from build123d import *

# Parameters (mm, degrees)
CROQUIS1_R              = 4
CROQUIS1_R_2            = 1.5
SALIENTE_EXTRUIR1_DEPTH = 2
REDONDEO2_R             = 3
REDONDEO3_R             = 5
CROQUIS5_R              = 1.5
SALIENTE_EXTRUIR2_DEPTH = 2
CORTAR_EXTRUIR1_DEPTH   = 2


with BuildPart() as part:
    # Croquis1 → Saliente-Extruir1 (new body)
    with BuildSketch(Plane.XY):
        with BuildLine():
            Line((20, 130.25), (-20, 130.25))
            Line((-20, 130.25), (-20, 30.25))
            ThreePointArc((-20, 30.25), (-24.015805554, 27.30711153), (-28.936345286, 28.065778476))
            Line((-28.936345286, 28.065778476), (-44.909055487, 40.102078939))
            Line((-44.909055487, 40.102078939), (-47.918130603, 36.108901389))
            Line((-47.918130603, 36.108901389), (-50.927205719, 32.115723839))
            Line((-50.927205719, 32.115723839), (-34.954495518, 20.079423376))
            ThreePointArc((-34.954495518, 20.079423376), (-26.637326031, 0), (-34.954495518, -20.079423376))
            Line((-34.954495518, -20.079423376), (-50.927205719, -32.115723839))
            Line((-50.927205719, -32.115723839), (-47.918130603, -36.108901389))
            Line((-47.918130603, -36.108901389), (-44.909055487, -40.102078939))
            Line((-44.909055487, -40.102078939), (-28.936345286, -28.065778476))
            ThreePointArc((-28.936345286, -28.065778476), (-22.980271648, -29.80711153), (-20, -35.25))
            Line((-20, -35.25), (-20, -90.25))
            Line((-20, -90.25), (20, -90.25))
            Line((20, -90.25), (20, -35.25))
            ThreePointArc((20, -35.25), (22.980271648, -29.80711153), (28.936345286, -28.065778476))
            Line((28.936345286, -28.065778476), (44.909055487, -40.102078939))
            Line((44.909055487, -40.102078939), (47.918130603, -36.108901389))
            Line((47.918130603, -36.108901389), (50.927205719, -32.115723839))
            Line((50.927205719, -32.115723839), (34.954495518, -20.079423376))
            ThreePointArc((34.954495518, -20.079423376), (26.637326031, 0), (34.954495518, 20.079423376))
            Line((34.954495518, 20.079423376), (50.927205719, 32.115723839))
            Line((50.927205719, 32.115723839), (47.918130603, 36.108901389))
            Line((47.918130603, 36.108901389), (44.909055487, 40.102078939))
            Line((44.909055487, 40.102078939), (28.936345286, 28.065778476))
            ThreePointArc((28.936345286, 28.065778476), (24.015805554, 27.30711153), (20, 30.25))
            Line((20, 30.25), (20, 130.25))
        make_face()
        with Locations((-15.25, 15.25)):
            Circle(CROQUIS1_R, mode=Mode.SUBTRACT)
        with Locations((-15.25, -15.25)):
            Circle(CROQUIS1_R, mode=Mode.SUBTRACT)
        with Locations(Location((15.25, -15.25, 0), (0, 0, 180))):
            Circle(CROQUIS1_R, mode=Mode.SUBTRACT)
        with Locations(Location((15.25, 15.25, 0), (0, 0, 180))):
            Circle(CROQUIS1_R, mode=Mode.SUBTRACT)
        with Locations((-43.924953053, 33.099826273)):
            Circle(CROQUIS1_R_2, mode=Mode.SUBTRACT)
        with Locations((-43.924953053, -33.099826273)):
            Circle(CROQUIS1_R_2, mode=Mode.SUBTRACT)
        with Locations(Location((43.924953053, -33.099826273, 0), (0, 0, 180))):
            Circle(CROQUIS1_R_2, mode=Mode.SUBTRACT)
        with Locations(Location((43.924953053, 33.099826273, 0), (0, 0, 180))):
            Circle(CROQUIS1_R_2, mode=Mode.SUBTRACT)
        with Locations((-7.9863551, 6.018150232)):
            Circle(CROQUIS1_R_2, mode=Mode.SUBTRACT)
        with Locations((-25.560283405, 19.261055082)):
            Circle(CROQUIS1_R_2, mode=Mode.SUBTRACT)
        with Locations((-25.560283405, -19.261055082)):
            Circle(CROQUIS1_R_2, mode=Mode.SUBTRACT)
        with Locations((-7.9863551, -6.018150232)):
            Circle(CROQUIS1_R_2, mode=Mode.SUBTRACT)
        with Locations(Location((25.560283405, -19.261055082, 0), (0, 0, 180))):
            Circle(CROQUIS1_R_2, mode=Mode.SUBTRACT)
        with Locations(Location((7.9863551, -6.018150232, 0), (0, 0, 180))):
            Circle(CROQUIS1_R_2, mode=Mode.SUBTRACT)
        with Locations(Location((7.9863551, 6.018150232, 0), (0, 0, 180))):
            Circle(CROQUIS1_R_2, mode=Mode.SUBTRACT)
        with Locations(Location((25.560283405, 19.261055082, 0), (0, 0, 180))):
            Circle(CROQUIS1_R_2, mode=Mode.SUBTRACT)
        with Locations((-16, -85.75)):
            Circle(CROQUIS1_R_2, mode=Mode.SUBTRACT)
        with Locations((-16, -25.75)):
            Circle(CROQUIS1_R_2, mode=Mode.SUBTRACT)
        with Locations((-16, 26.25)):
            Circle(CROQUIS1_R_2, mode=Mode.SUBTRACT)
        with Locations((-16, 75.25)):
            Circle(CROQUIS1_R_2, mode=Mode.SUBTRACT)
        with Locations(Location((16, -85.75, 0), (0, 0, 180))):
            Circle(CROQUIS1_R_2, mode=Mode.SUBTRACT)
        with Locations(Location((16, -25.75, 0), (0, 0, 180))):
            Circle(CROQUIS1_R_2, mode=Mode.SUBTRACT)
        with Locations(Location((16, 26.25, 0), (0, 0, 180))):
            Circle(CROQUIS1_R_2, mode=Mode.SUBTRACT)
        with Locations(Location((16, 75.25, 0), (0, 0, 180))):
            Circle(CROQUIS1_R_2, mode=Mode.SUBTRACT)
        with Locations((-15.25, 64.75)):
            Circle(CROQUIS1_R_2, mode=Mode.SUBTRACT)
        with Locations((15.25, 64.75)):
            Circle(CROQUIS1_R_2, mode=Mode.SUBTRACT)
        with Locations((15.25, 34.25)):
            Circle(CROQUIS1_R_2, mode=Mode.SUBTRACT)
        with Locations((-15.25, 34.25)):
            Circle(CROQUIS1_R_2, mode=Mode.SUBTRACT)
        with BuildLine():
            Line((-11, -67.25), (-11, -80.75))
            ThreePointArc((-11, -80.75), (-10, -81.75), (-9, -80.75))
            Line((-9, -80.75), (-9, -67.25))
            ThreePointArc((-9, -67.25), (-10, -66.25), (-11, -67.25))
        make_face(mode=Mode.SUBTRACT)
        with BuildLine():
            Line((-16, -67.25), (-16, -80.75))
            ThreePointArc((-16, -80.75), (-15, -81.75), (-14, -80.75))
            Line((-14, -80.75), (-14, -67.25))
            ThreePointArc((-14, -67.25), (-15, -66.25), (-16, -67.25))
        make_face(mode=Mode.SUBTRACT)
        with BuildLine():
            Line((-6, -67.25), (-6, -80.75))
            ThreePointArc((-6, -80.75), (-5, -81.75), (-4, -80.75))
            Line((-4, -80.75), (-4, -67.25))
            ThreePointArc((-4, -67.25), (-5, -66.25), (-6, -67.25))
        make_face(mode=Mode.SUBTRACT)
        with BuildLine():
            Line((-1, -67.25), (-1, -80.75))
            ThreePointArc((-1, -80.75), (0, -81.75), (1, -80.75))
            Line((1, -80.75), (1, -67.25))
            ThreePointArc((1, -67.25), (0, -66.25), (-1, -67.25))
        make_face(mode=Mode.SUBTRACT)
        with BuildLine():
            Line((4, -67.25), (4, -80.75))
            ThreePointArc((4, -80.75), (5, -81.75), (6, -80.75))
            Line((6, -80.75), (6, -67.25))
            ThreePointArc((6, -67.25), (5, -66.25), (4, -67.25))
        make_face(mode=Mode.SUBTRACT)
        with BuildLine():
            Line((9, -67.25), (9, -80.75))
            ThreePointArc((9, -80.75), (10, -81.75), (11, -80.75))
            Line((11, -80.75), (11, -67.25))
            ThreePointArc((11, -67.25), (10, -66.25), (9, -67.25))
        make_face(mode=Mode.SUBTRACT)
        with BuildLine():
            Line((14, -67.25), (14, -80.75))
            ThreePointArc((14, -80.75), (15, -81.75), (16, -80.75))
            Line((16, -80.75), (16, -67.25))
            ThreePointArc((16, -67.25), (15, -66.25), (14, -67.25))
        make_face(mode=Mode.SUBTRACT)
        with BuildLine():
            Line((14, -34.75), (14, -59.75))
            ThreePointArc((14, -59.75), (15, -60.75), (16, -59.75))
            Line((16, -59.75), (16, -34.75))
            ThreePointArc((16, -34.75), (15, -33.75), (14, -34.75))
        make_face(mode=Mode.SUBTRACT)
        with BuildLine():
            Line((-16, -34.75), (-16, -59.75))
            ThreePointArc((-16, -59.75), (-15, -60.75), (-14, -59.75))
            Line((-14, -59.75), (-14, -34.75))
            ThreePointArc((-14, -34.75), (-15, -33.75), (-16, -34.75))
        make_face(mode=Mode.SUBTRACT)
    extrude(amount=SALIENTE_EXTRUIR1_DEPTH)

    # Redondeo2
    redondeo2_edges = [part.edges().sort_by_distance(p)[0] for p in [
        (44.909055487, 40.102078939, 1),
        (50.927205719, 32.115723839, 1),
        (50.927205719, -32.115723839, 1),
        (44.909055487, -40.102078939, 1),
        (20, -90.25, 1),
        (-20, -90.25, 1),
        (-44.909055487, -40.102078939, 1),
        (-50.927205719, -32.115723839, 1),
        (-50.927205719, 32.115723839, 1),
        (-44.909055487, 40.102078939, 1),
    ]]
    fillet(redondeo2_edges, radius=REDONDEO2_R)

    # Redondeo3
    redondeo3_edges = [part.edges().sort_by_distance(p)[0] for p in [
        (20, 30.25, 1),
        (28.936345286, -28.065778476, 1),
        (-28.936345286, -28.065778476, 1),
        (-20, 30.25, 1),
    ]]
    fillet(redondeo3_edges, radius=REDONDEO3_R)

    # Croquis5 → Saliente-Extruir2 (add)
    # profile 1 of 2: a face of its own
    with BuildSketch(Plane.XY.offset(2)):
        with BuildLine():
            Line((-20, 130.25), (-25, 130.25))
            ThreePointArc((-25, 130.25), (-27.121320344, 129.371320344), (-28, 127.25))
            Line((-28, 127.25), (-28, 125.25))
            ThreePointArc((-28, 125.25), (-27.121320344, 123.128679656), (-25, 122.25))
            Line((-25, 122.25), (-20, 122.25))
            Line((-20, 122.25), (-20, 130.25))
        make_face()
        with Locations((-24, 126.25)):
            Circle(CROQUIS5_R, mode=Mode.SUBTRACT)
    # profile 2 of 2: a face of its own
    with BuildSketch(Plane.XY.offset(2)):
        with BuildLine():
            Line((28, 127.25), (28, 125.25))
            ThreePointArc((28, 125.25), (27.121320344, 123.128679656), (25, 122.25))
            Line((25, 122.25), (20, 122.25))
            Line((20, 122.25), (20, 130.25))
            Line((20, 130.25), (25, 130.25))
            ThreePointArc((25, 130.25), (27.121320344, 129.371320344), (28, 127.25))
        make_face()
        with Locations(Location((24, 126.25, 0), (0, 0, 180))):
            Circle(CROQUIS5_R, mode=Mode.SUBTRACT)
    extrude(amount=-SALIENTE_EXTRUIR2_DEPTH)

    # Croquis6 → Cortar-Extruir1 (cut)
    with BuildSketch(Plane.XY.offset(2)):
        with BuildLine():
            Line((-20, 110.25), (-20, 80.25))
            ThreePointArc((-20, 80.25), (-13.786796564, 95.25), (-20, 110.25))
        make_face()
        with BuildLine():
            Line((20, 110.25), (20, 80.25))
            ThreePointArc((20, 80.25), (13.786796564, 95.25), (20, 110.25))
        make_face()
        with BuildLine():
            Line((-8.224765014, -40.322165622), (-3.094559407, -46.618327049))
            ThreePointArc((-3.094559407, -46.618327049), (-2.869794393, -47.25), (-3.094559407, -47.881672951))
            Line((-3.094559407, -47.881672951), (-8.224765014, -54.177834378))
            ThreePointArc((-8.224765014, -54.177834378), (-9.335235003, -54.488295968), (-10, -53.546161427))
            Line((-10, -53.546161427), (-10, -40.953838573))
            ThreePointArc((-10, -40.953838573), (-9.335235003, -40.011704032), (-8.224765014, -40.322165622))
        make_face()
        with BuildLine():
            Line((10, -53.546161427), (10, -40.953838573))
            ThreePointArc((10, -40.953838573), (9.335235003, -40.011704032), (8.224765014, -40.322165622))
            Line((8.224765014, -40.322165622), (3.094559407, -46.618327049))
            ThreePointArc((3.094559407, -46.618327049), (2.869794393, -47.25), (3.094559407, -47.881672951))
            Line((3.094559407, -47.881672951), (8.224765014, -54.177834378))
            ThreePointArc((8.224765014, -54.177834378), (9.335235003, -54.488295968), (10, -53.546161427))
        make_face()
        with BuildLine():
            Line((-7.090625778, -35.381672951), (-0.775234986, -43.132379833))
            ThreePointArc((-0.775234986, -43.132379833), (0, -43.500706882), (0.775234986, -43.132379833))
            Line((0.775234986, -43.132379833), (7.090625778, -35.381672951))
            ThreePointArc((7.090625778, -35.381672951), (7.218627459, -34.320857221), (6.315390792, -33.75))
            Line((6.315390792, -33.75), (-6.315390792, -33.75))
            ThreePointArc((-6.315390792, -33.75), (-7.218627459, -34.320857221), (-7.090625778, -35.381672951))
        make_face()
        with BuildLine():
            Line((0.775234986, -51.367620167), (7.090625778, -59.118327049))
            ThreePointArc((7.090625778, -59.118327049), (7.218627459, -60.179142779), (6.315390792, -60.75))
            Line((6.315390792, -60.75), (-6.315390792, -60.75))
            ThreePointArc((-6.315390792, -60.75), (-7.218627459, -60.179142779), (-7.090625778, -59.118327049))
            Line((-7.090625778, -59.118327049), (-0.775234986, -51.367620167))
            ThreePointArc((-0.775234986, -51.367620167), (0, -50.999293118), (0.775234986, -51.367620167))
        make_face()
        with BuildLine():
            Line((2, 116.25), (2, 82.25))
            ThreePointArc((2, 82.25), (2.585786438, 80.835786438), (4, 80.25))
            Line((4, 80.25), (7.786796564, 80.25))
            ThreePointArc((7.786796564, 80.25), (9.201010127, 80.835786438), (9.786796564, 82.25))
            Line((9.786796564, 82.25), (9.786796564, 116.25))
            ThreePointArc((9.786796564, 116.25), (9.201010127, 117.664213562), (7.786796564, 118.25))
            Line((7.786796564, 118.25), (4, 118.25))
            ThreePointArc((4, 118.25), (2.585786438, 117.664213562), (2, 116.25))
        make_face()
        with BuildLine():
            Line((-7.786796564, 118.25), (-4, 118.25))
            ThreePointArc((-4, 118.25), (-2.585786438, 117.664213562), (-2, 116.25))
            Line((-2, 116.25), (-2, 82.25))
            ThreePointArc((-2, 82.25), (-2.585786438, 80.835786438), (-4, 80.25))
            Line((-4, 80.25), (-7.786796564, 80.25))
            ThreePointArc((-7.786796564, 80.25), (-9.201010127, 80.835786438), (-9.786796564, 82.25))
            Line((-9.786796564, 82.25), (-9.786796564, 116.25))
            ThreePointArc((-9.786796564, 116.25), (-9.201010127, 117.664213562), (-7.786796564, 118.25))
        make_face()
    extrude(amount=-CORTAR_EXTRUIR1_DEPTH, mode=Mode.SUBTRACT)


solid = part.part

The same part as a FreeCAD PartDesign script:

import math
import FreeCAD as App
import Part
import Sketcher
from FreeCAD import Vector
Q = App.Units.Quantity


def edges_at(feature, points):
    """Names of the edges that pass closest to the given points."""
    edges = feature.Shape.Edges
    near = lambda p: min(range(len(edges)), key=lambda i: edges[i].distToShape(Part.Vertex(*p))[0])
    return sorted({f"Edge{near(p) + 1}" for p in points})

doc = App.newDocument("Part")
body = doc.addObject("PartDesign::Body", "Body")

sketch1 = body.newObject("Sketcher::SketchObject", "Sketch")
sketch1.AttachmentSupport = (doc.getObject("XY_Plane"), [""])
sketch1.MapMode = "FlatFace"
sketch1.addGeometry([
    Part.LineSegment(Vector(20, 130.2, 0), Vector(-20, 130.2, 0)),
    Part.LineSegment(Vector(-20, 130.2, 0), Vector(-20, 30.2, 0)),
    Part.ArcOfCircle(Part.Circle(Vector(-25.6, 33.6, 0), Vector(0, 0, 1), 6.5), math.radians(-121), math.radians(-31)),
    Part.LineSegment(Vector(-28.9, 28.1, 0), Vector(-44.9, 40.1, 0)),
    Part.LineSegment(Vector(-44.9, 40.1, 0), Vector(-50.9, 32.1, 0)),
    Part.LineSegment(Vector(-50.9, 32.1, 0), Vector(-35, 20.1, 0)),
    Part.ArcOfCircle(Part.Circle(Vector(-55, 0, 0), Vector(0, 0, 1), 28.4), math.radians(-45), math.radians(45)),
    Part.LineSegment(Vector(-35, -20.1, 0), Vector(-50.9, -32.1, 0)),
    Part.LineSegment(Vector(-50.9, -32.1, 0), Vector(-44.9, -40.1, 0)),
    Part.LineSegment(Vector(-44.9, -40.1, 0), Vector(-28.9, -28.1, 0)),
    Part.ArcOfCircle(Part.Circle(Vector(-28.1, -36.1, 0), Vector(0, 0, 1), 8.1), math.radians(6), math.radians(96)),
    Part.LineSegment(Vector(-20, -35.2, 0), Vector(-20, -90.2, 0)),
    Part.LineSegment(Vector(-20, -90.2, 0), Vector(20, -90.2, 0)),
    Part.LineSegment(Vector(20, -90.2, 0), Vector(20, -35.2, 0)),
    Part.ArcOfCircle(Part.Circle(Vector(28.1, -36.1, 0), Vector(0, 0, 1), 8.1), math.radians(84), math.radians(174)),
    Part.LineSegment(Vector(28.9, -28.1, 0), Vector(44.9, -40.1, 0)),
    Part.LineSegment(Vector(44.9, -40.1, 0), Vector(50.9, -32.1, 0)),
    Part.LineSegment(Vector(50.9, -32.1, 0), Vector(35, -20.1, 0)),
    Part.ArcOfCircle(Part.Circle(Vector(55, 0, 0), Vector(0, 0, 1), 28.4), math.radians(135), math.radians(225)),
    Part.LineSegment(Vector(35, 20.1, 0), Vector(50.9, 32.1, 0)),
    Part.LineSegment(Vector(50.9, 32.1, 0), Vector(44.9, 40.1, 0)),
    Part.LineSegment(Vector(44.9, 40.1, 0), Vector(28.9, 28.1, 0)),
    Part.ArcOfCircle(Part.Circle(Vector(25.6, 33.6, 0), Vector(0, 0, 1), 6.5), math.radians(-149), math.radians(-59)),
    Part.LineSegment(Vector(20, 30.2, 0), Vector(20, 130.2, 0)),
    Part.Circle(Vector(-16, -85.8, 0), Vector(0, 0, 1), 1.5),
    Part.LineSegment(Vector(-16, -80.8, 0), Vector(-16, -67.2, 0)),
    Part.ArcOfCircle(Part.Circle(Vector(-15, -67.2, 0), Vector(0, 0, 1), 1), math.radians(0), math.radians(180)),
    Part.LineSegment(Vector(-14, -67.2, 0), Vector(-14, -80.8, 0)),
    Part.ArcOfCircle(Part.Circle(Vector(-15, -80.8, 0), Vector(0, 0, 1), 1), math.radians(180), math.radians(360)),
    Part.LineSegment(Vector(-11, -80.8, 0), Vector(-11, -67.2, 0)),
    Part.ArcOfCircle(Part.Circle(Vector(-10, -67.2, 0), Vector(0, 0, 1), 1), math.radians(0), math.radians(180)),
    Part.LineSegment(Vector(-9, -67.2, 0), Vector(-9, -80.8, 0)),
    Part.ArcOfCircle(Part.Circle(Vector(-10, -80.8, 0), Vector(0, 0, 1), 1), math.radians(180), math.radians(360)),
    Part.LineSegment(Vector(-6, -80.8, 0), Vector(-6, -67.2, 0)),
    Part.ArcOfCircle(Part.Circle(Vector(-5, -67.2, 0), Vector(0, 0, 1), 1), math.radians(0), math.radians(180)),
    Part.LineSegment(Vector(-4, -67.2, 0), Vector(-4, -80.8, 0)),
    Part.ArcOfCircle(Part.Circle(Vector(-5, -80.8, 0), Vector(0, 0, 1), 1), math.radians(180), math.radians(360)),
    Part.LineSegment(Vector(-1, -80.8, 0), Vector(-1, -67.2, 0)),
    Part.ArcOfCircle(Part.Circle(Vector(0, -67.2, 0), Vector(0, 0, 1), 1), math.radians(0), math.radians(180)),
    Part.LineSegment(Vector(1, -67.2, 0), Vector(1, -80.8, 0)),
    Part.ArcOfCircle(Part.Circle(Vector(0, -80.8, 0), Vector(0, 0, 1), 1), math.radians(180), math.radians(360)),
    Part.LineSegment(Vector(-16, -59.8, 0), Vector(-16, -34.8, 0)),
    Part.ArcOfCircle(Part.Circle(Vector(-15, -34.8, 0), Vector(0, 0, 1), 1), math.radians(0), math.radians(180)),
    Part.LineSegment(Vector(-14, -34.8, 0), Vector(-14, -59.8, 0)),
    Part.ArcOfCircle(Part.Circle(Vector(-15, -59.8, 0), Vector(0, 0, 1), 1), math.radians(180), math.radians(360)),
    Part.Circle(Vector(-43.9, -33.1, 0), Vector(0, 0, 1), 1.5),
    Part.Circle(Vector(-25.6, -19.3, 0), Vector(0, 0, 1), 1.5),
    Part.Circle(Vector(-16, -25.8, 0), Vector(0, 0, 1), 1.5),
    Part.Circle(Vector(-15.2, -15.2, 0), Vector(0, 0, 1), 4),
    Part.Circle(Vector(-8, -6, 0), Vector(0, 0, 1), 1.5),
    Part.LineSegment(Vector(4, -80.8, 0), Vector(4, -67.2, 0)),
    Part.ArcOfCircle(Part.Circle(Vector(5, -67.2, 0), Vector(0, 0, 1), 1), math.radians(0), math.radians(180)),
    Part.LineSegment(Vector(6, -67.2, 0), Vector(6, -80.8, 0)),
    Part.ArcOfCircle(Part.Circle(Vector(5, -80.8, 0), Vector(0, 0, 1), 1), math.radians(180), math.radians(360)),
    Part.LineSegment(Vector(9, -80.8, 0), Vector(9, -67.2, 0)),
    Part.ArcOfCircle(Part.Circle(Vector(10, -67.2, 0), Vector(0, 0, 1), 1), math.radians(0), math.radians(180)),
    Part.LineSegment(Vector(11, -67.2, 0), Vector(11, -80.8, 0)),
    Part.ArcOfCircle(Part.Circle(Vector(10, -80.8, 0), Vector(0, 0, 1), 1), math.radians(180), math.radians(360)),
    Part.Circle(Vector(16, -85.8, 0), Vector(0, 0, 1), 1.5),
    Part.LineSegment(Vector(14, -80.8, 0), Vector(14, -67.2, 0)),
    Part.ArcOfCircle(Part.Circle(Vector(15, -67.2, 0), Vector(0, 0, 1), 1), math.radians(0), math.radians(180)),
    Part.LineSegment(Vector(16, -67.2, 0), Vector(16, -80.8, 0)),
    Part.ArcOfCircle(Part.Circle(Vector(15, -80.8, 0), Vector(0, 0, 1), 1), math.radians(180), math.radians(360)),
    Part.LineSegment(Vector(14, -59.8, 0), Vector(14, -34.8, 0)),
    Part.ArcOfCircle(Part.Circle(Vector(15, -34.8, 0), Vector(0, 0, 1), 1), math.radians(0), math.radians(180)),
    Part.LineSegment(Vector(16, -34.8, 0), Vector(16, -59.8, 0)),
    Part.ArcOfCircle(Part.Circle(Vector(15, -59.8, 0), Vector(0, 0, 1), 1), math.radians(180), math.radians(360)),
    Part.Circle(Vector(8, -6, 0), Vector(0, 0, 1), 1.5),
    Part.Circle(Vector(16, -25.8, 0), Vector(0, 0, 1), 1.5),
    Part.Circle(Vector(15.2, -15.2, 0), Vector(0, 0, 1), 4),
    Part.Circle(Vector(43.9, -33.1, 0), Vector(0, 0, 1), 1.5),
    Part.Circle(Vector(25.6, -19.3, 0), Vector(0, 0, 1), 1.5),
    Part.Circle(Vector(-43.9, 33.1, 0), Vector(0, 0, 1), 1.5),
    Part.Circle(Vector(-25.6, 19.3, 0), Vector(0, 0, 1), 1.5),
    Part.Circle(Vector(-8, 6, 0), Vector(0, 0, 1), 1.5),
    Part.Circle(Vector(-15.2, 15.2, 0), Vector(0, 0, 1), 4),
    Part.Circle(Vector(-16, 26.2, 0), Vector(0, 0, 1), 1.5),
    Part.Circle(Vector(-15.2, 34.2, 0), Vector(0, 0, 1), 1.5),
    Part.Circle(Vector(-15.2, 64.8, 0), Vector(0, 0, 1), 1.5),
    Part.Circle(Vector(-16, 75.2, 0), Vector(0, 0, 1), 1.5),
    Part.Circle(Vector(8, 6, 0), Vector(0, 0, 1), 1.5),
    Part.Circle(Vector(15.2, 15.2, 0), Vector(0, 0, 1), 4),
    Part.Circle(Vector(16, 26.2, 0), Vector(0, 0, 1), 1.5),
    Part.Circle(Vector(15.2, 34.2, 0), Vector(0, 0, 1), 1.5),
    Part.Circle(Vector(25.6, 19.3, 0), Vector(0, 0, 1), 1.5),
    Part.Circle(Vector(43.9, 33.1, 0), Vector(0, 0, 1), 1.5),
    Part.Circle(Vector(15.2, 64.8, 0), Vector(0, 0, 1), 1.5),
    Part.Circle(Vector(16, 75.2, 0), Vector(0, 0, 1), 1.5),
], False)
sketch1.addConstraint([
    Sketcher.Constraint("Coincident", 0, 2, 1, 1),
    Sketcher.Constraint("Coincident", 1, 2, 2, 2),
    Sketcher.Constraint("Coincident", 2, 1, 3, 1),
    Sketcher.Constraint("Coincident", 3, 2, 4, 1),
    Sketcher.Constraint("Coincident", 4, 2, 5, 1),
    Sketcher.Constraint("Coincident", 5, 2, 6, 2),
    Sketcher.Constraint("Coincident", 6, 1, 7, 1),
    Sketcher.Constraint("Coincident", 7, 2, 8, 1),
    Sketcher.Constraint("Coincident", 8, 2, 9, 1),
    Sketcher.Constraint("Coincident", 9, 2, 10, 2),
    Sketcher.Constraint("Coincident", 10, 1, 11, 1),
    Sketcher.Constraint("Coincident", 11, 2, 12, 1),
    Sketcher.Constraint("Coincident", 12, 2, 13, 1),
    Sketcher.Constraint("Coincident", 13, 2, 14, 2),
    Sketcher.Constraint("Coincident", 14, 1, 15, 1),
    Sketcher.Constraint("Coincident", 15, 2, 16, 1),
    Sketcher.Constraint("Coincident", 16, 2, 17, 1),
    Sketcher.Constraint("Coincident", 17, 2, 18, 2),
    Sketcher.Constraint("Coincident", 18, 1, 19, 1),
    Sketcher.Constraint("Coincident", 19, 2, 20, 1),
    Sketcher.Constraint("Coincident", 20, 2, 21, 1),
    Sketcher.Constraint("Coincident", 21, 2, 22, 2),
    Sketcher.Constraint("Coincident", 22, 1, 23, 1),
    Sketcher.Constraint("Coincident", 23, 2, 0, 1),
    Sketcher.Constraint("Tangent", 25, 2, 26, 2),
    Sketcher.Constraint("Tangent", 26, 1, 27, 1),
    Sketcher.Constraint("Tangent", 27, 2, 28, 2),
    Sketcher.Constraint("Tangent", 28, 1, 25, 1),
    Sketcher.Constraint("Tangent", 29, 2, 30, 2),
    Sketcher.Constraint("Tangent", 30, 1, 31, 1),
    Sketcher.Constraint("Tangent", 31, 2, 32, 2),
    Sketcher.Constraint("Tangent", 32, 1, 29, 1),
    Sketcher.Constraint("Tangent", 33, 2, 34, 2),
    Sketcher.Constraint("Tangent", 34, 1, 35, 1),
    Sketcher.Constraint("Tangent", 35, 2, 36, 2),
    Sketcher.Constraint("Tangent", 36, 1, 33, 1),
    Sketcher.Constraint("Tangent", 37, 2, 38, 2),
    Sketcher.Constraint("Tangent", 38, 1, 39, 1),
    Sketcher.Constraint("Tangent", 39, 2, 40, 2),
    Sketcher.Constraint("Tangent", 40, 1, 37, 1),
    Sketcher.Constraint("Tangent", 41, 2, 42, 2),
    Sketcher.Constraint("Tangent", 42, 1, 43, 1),
    Sketcher.Constraint("Tangent", 43, 2, 44, 2),
    Sketcher.Constraint("Tangent", 44, 1, 41, 1),
    Sketcher.Constraint("Tangent", 50, 2, 51, 2),
    Sketcher.Constraint("Tangent", 51, 1, 52, 1),
    Sketcher.Constraint("Tangent", 52, 2, 53, 2),
    Sketcher.Constraint("Tangent", 53, 1, 50, 1),
    Sketcher.Constraint("Tangent", 54, 2, 55, 2),
    Sketcher.Constraint("Tangent", 55, 1, 56, 1),
    Sketcher.Constraint("Tangent", 56, 2, 57, 2),
    Sketcher.Constraint("Tangent", 57, 1, 54, 1),
    Sketcher.Constraint("Tangent", 59, 2, 60, 2),
    Sketcher.Constraint("Tangent", 60, 1, 61, 1),
    Sketcher.Constraint("Tangent", 61, 2, 62, 2),
    Sketcher.Constraint("Tangent", 62, 1, 59, 1),
    Sketcher.Constraint("Tangent", 63, 2, 64, 2),
    Sketcher.Constraint("Tangent", 64, 1, 65, 1),
    Sketcher.Constraint("Tangent", 65, 2, 66, 2),
    Sketcher.Constraint("Tangent", 66, 1, 63, 1),
    Sketcher.Constraint("Horizontal", 0),
    Sketcher.Constraint("Vertical", 1),
    Sketcher.Constraint("Vertical", 11),
    Sketcher.Constraint("Horizontal", 12),
    Sketcher.Constraint("Vertical", 13),
    Sketcher.Constraint("Vertical", 23),
    Sketcher.Constraint("Vertical", 25),
    Sketcher.Constraint("Vertical", 27),
    Sketcher.Constraint("Vertical", 29),
    Sketcher.Constraint("Vertical", 31),
    Sketcher.Constraint("Vertical", 33),
    Sketcher.Constraint("Vertical", 35),
    Sketcher.Constraint("Vertical", 37),
    Sketcher.Constraint("Vertical", 39),
    Sketcher.Constraint("Vertical", 41),
    Sketcher.Constraint("Vertical", 43),
    Sketcher.Constraint("Vertical", 50),
    Sketcher.Constraint("Vertical", 52),
    Sketcher.Constraint("Vertical", 54),
    Sketcher.Constraint("Vertical", 56),
    Sketcher.Constraint("Vertical", 59),
    Sketcher.Constraint("Vertical", 61),
    Sketcher.Constraint("Vertical", 63),
    Sketcher.Constraint("Vertical", 65),
    Sketcher.Constraint("Equal", 10, 14),
    Sketcher.Constraint("Equal", 6, 18),
    Sketcher.Constraint("Equal", 2, 22),
    Sketcher.Constraint("Equal", 28, 30),
    Sketcher.Constraint("Equal", 32, 34),
    Sketcher.Constraint("Equal", 36, 38),
    Sketcher.Constraint("Equal", 40, 42),
    Sketcher.Constraint("Equal", 24, 45),
    Sketcher.Constraint("Equal", 45, 46),
    Sketcher.Constraint("Equal", 46, 47),
    Sketcher.Constraint("Equal", 47, 49),
    Sketcher.Constraint("Equal", 44, 51),
    Sketcher.Constraint("Equal", 53, 55),
    Sketcher.Constraint("Equal", 49, 58),
    Sketcher.Constraint("Equal", 57, 60),
    Sketcher.Constraint("Equal", 62, 64),
    Sketcher.Constraint("Equal", 58, 67),
    Sketcher.Constraint("Equal", 67, 68),
    Sketcher.Constraint("Equal", 48, 69),
    Sketcher.Constraint("Equal", 68, 70),
    Sketcher.Constraint("Equal", 70, 71),
    Sketcher.Constraint("Equal", 71, 72),
    Sketcher.Constraint("Equal", 72, 73),
    Sketcher.Constraint("Equal", 73, 74),
    Sketcher.Constraint("Equal", 69, 75),
    Sketcher.Constraint("Equal", 74, 76),
    Sketcher.Constraint("Equal", 76, 77),
    Sketcher.Constraint("Equal", 77, 78),
    Sketcher.Constraint("Equal", 78, 79),
    Sketcher.Constraint("Equal", 79, 80),
    Sketcher.Constraint("Equal", 75, 81),
    Sketcher.Constraint("Equal", 80, 82),
    Sketcher.Constraint("Equal", 82, 83),
    Sketcher.Constraint("Equal", 83, 84),
    Sketcher.Constraint("Equal", 84, 85),
    Sketcher.Constraint("Equal", 85, 86),
    Sketcher.Constraint("Equal", 86, 87),
    Sketcher.Constraint("Symmetric", 6, 3, 18, 3, -1, 1),
    Sketcher.Constraint("Symmetric", 70, 3, 72, 3, -1, 1),
    Sketcher.Constraint("Symmetric", 71, 3, 73, 3, -1, 1),
    Sketcher.Constraint("Symmetric", 67, 3, 74, 3, -1, 1),
    Sketcher.Constraint("Symmetric", 69, 3, 75, 3, -1, 1),
    Sketcher.Constraint("Symmetric", 49, 3, 80, 3, -1, 1),
    Sketcher.Constraint("Symmetric", 48, 3, 81, 3, -1, 1),
    Sketcher.Constraint("Symmetric", 46, 3, 84, 3, -1, 1),
    Sketcher.Constraint("Symmetric", 45, 3, 85, 3, -1, 1),
    Sketcher.Constraint("Symmetric", 2, 1, 14, 1, -1, 1),
    Sketcher.Constraint("Symmetric", 3, 2, 15, 2, -1, 1),
    Sketcher.Constraint("Symmetric", 4, 2, 16, 2, -1, 1),
    Sketcher.Constraint("Symmetric", 7, 2, 19, 2, -1, 1),
    Sketcher.Constraint("Symmetric", 8, 2, 20, 2, -1, 1),
    Sketcher.Constraint("Symmetric", 9, 2, 21, 2, -1, 1),
    Sketcher.Constraint("Symmetric", 10, 3, 14, 3, -2),
    Sketcher.Constraint("Symmetric", 2, 3, 22, 3, -2),
    Sketcher.Constraint("Symmetric", 34, 3, 51, 3, -2),
    Sketcher.Constraint("Symmetric", 30, 3, 55, 3, -2),
    Sketcher.Constraint("Symmetric", 24, 3, 58, 3, -2),
    Sketcher.Constraint("Symmetric", 26, 3, 60, 3, -2),
    Sketcher.Constraint("Symmetric", 42, 3, 64, 3, -2),
    Sketcher.Constraint("Symmetric", 49, 3, 67, 3, -2),
    Sketcher.Constraint("Symmetric", 47, 3, 68, 3, -2),
    Sketcher.Constraint("Symmetric", 48, 3, 69, 3, -2),
    Sketcher.Constraint("Symmetric", 45, 3, 70, 3, -2),
    Sketcher.Constraint("Symmetric", 46, 3, 71, 3, -2),
    Sketcher.Constraint("Symmetric", 76, 3, 82, 3, -2),
    Sketcher.Constraint("Symmetric", 77, 3, 83, 3, -2),
    Sketcher.Constraint("Symmetric", 78, 3, 86, 3, -2),
    Sketcher.Constraint("Symmetric", 79, 3, 87, 3, -2),
    Sketcher.Constraint("Symmetric", 8, 2, 15, 2, -2),
    Sketcher.Constraint("Symmetric", 7, 2, 16, 2, -2),
    Sketcher.Constraint("Symmetric", 6, 1, 17, 2, -2),
    Sketcher.Constraint("PointOnObject", 38, 3, -2),
    Sketcher.Constraint("Perpendicular", 3, 4),
    Sketcher.Constraint("Perpendicular", 4, 5),
    Sketcher.Constraint("Perpendicular", 7, 8),
    Sketcher.Constraint("Parallel", 9, 19),
    Sketcher.Constraint("Horizontal", 26, 3, 30, 3),
    Sketcher.Constraint("Horizontal", 28, 3, 32, 3),
    Sketcher.Constraint("Horizontal", 30, 3, 34, 3),
    Sketcher.Constraint("Horizontal", 32, 3, 36, 3),
    Sketcher.Constraint("Horizontal", 34, 3, 38, 3),
    Sketcher.Constraint("Horizontal", 36, 3, 40, 3),
    Sketcher.Constraint("Horizontal", 40, 3, 53, 3),
    Sketcher.Constraint("Horizontal", 53, 3, 57, 3),
    Sketcher.Constraint("Horizontal", 57, 3, 62, 3),
    Sketcher.Constraint("Horizontal", 44, 3, 66, 3),
    Sketcher.Constraint("Horizontal", 10, 1, 13, 2),
    Sketcher.Constraint("Horizontal", 1, 2, 22, 1),
    Sketcher.Constraint("Vertical", 28, 3, 42, 3),
    Sketcher.Constraint("Vertical", 2, 3, 46, 3),
    Sketcher.Constraint("Vertical", 24, 3, 47, 3),
    Sketcher.Constraint("Vertical", 47, 3, 76, 3),
    Sketcher.Constraint("Vertical", 75, 3, 77, 3),
    Sketcher.Constraint("Vertical", 77, 3, 78, 3),
    Sketcher.Constraint("Vertical", 76, 3, 79, 3),
    Sketcher.Constraint("Vertical", 1, 2, 10, 1),
    Sketcher.Constraint("Vertical", 79, 3, 25, 2),
    Sketcher.Constraint("Equal", 3, 5),
    Sketcher.Constraint("Diameter", 24, Q("3 mm")),
    Sketcher.Constraint("Diameter", 48, Q("8 mm")),
    Sketcher.Constraint("Radius", 26, Q("1 mm")),
    Sketcher.Constraint("DistanceX", 0, 2, 0, 1, Q("40 mm")),
    Sketcher.Constraint("DistanceY", 1, 2, 1, 1, Q("100 mm")),
    Sketcher.Constraint("DistanceY", 11, 2, 11, 1, Q("55 mm")),
    Sketcher.Constraint("DistanceY", 41, 1, 41, 2, Q("25 mm")),
    Sketcher.Constraint("Angle", 3, Q("143 deg")),
    Sketcher.Constraint("Distance", 3, Q("20 mm")),
    Sketcher.Constraint("Distance", 4, Q("10 mm")),
    Sketcher.Constraint("DistanceY", 25, 1, 25, 2, Q("13.5 mm")),
    Sketcher.Constraint("DistanceX", 24, 3, -1, 1, Q("16 mm")),
    Sketcher.Constraint("DistanceX", 30, 3, -1, 1, Q("10 mm")),
    Sketcher.Constraint("DistanceX", 34, 3, -1, 1, Q("5 mm")),
    Sketcher.Constraint("DistanceY", 24, 3, -1, 1, Q("85.75 mm")),
    Sketcher.Constraint("DistanceY", 26, 3, -1, 1, Q("67.25 mm")),
    Sketcher.Constraint("DistanceY", 42, 3, -1, 1, Q("34.75 mm")),
    Sketcher.Constraint("DistanceY", 47, 3, -1, 1, Q("25.75 mm")),
    Sketcher.Constraint("DistanceX", 48, 3, -1, 1, Q("15.25 mm")),
    Sketcher.Constraint("DistanceY", 48, 3, -1, 1, Q("15.25 mm")),
    Sketcher.Constraint("DistanceY", -1, 1, 76, 3, Q("26.25 mm")),
    Sketcher.Constraint("DistanceY", -1, 1, 77, 3, Q("34.25 mm")),
    Sketcher.Constraint("DistanceY", -1, 1, 78, 3, Q("64.75 mm")),
    Sketcher.Constraint("DistanceY", -1, 1, 79, 3, Q("75.25 mm")),
    Sketcher.Constraint("DistanceY", -1, 1, 0, 2, Q("130.25 mm")),
    Sketcher.Constraint("DistanceY", 10, 1, -1, 1, Q("35.25 mm")),
    Sketcher.Constraint("Radius", 2, Q("6.504963 mm")),
    Sketcher.Constraint("Radius", 6, Q("28.396593 mm")),
    Sketcher.Constraint("Radius", 10, Q("8.107753 mm")),
    Sketcher.Constraint("DistanceY", -1, 1, 2, 3, Q("33.626062 mm")),
    Sketcher.Constraint("DistanceX", 6, 3, -1, 1, Q("55.033919 mm")),
    Sketcher.Constraint("DistanceY", 49, 3, -1, 1, Q("6.01815 mm")),
    Sketcher.Constraint("DistanceX", 45, 3, -1, 1, Q("43.924953 mm")),
    Sketcher.Constraint("DistanceY", 45, 3, -1, 1, Q("33.099826 mm")),
    Sketcher.Constraint("DistanceY", 46, 3, -1, 1, Q("19.261055 mm")),
    Sketcher.Constraint("DistanceX", 49, 3, -1, 1, Q("7.986355 mm")),
])
pad1 = body.newObject("PartDesign::Pad", "Pad")
pad1.Profile = sketch1
pad1.Length = 2
doc.recompute()

fillet = body.newObject("PartDesign::Fillet", "Fillet")
fillet.Base = (pad1, edges_at(pad1, [
    (44.909, 40.102, 1),
    (50.927, 32.116, 1),
    (50.927, -32.116, 1),
    (44.909, -40.102, 1),
    (20, -90.25, 1),
    (-20, -90.25, 1),
    (-44.909, -40.102, 1),
    (-50.927, -32.116, 1),
    (-50.927, 32.116, 1),
    (-44.909, 40.102, 1),
]))
fillet.Radius = 3
doc.recompute()

fillet2 = body.newObject("PartDesign::Fillet", "Fillet001")
fillet2.Base = (fillet, edges_at(fillet, [
    (20, 30.25, 1),
    (28.936, -28.066, 1),
    (-28.936, -28.066, 1),
    (-20, 30.25, 1),
]))
fillet2.Radius = 5

sketch2 = body.newObject("Sketcher::SketchObject", "Sketch001")
sketch2.AttachmentSupport = (doc.getObject("XY_Plane"), [""])
sketch2.MapMode = "FlatFace"
sketch2.AttachmentOffset = App.Placement(Vector(0, 0, 2), App.Rotation())
sketch2.addGeometry([
    Part.LineSegment(Vector(-20, 130.2, 0), Vector(-25, 130.2, 0)),
    Part.ArcOfCircle(Part.Circle(Vector(-25, 127.3, 0), Vector(0, 0, 1), 3), math.radians(90), math.radians(180)),
    Part.LineSegment(Vector(-28, 127.2, 0), Vector(-28, 125.2, 0)),
    Part.ArcOfCircle(Part.Circle(Vector(-25, 125.2, 0), Vector(0, 0, 1), 3), math.radians(180), math.radians(270)),
    Part.LineSegment(Vector(-25, 122.2, 0), Vector(-20, 122.2, 0)),
    Part.LineSegment(Vector(-20, 122.2, 0), Vector(-20, 130.2, 0)),
    Part.Circle(Vector(-24, 126.2, 0), Vector(0, 0, 1), 1.5),
    Part.LineSegment(Vector(28, 125.2, 0), Vector(28, 127.2, 0)),
    Part.ArcOfCircle(Part.Circle(Vector(25, 127.3, 0), Vector(0, 0, 1), 3), math.radians(0), math.radians(90)),
    Part.LineSegment(Vector(25, 130.2, 0), Vector(20, 130.2, 0)),
    Part.LineSegment(Vector(20, 130.2, 0), Vector(20, 122.2, 0)),
    Part.LineSegment(Vector(20, 122.2, 0), Vector(25, 122.2, 0)),
    Part.ArcOfCircle(Part.Circle(Vector(25, 125.2, 0), Vector(0, 0, 1), 3), math.radians(-90), math.radians(0)),
    Part.Circle(Vector(24, 126.2, 0), Vector(0, 0, 1), 1.5),
], False)
sketch2.addConstraint([
    Sketcher.Constraint("Tangent", 0, 2, 1, 1),
    Sketcher.Constraint("Tangent", 1, 2, 2, 1),
    Sketcher.Constraint("Tangent", 2, 2, 3, 1),
    Sketcher.Constraint("Tangent", 3, 2, 4, 1),
    Sketcher.Constraint("Coincident", 4, 2, 5, 1),
    Sketcher.Constraint("Coincident", 5, 2, 0, 1),
    Sketcher.Constraint("Tangent", 7, 2, 8, 1),
    Sketcher.Constraint("Tangent", 8, 2, 9, 1),
    Sketcher.Constraint("Coincident", 9, 2, 10, 1),
    Sketcher.Constraint("Coincident", 10, 2, 11, 1),
    Sketcher.Constraint("Tangent", 11, 2, 12, 1),
    Sketcher.Constraint("Tangent", 12, 2, 7, 1),
    Sketcher.Constraint("Horizontal", 0),
    Sketcher.Constraint("Vertical", 2),
    Sketcher.Constraint("Horizontal", 4),
    Sketcher.Constraint("Vertical", 5),
    Sketcher.Constraint("Vertical", 7),
    Sketcher.Constraint("Horizontal", 9),
    Sketcher.Constraint("Vertical", 10),
    Sketcher.Constraint("Horizontal", 11),
    Sketcher.Constraint("Equal", 1, 3),
    Sketcher.Constraint("Equal", 3, 8),
    Sketcher.Constraint("Equal", 8, 12),
    Sketcher.Constraint("Equal", 6, 13),
    Sketcher.Constraint("Symmetric", 1, 3, 8, 3, -2),
    Sketcher.Constraint("Symmetric", 6, 3, 13, 3, -2),
    Sketcher.Constraint("Symmetric", 4, 2, 10, 2, -2),
    Sketcher.Constraint("Diameter", 6, Q("3 mm")),
    Sketcher.Constraint("Radius", 1, Q("3 mm")),
    Sketcher.Constraint("DistanceX", 0, 2, 0, 1, Q("5 mm")),
    Sketcher.Constraint("DistanceY", 2, 2, 2, 1, Q("2 mm")),
    Sketcher.Constraint("DistanceX", 1, 3, -1, 1, Q("25 mm")),
    Sketcher.Constraint("DistanceX", 6, 3, -1, 1, Q("24 mm")),
    Sketcher.Constraint("DistanceY", 6, 3, 1, 3, Q("1 mm")),
    Sketcher.Constraint("DistanceY", -1, 1, 1, 3, Q("127.25 mm")),
])
pad2 = body.newObject("PartDesign::Pad", "Pad001")
pad2.Profile = sketch2
pad2.Length = 2
pad2.Reversed = True

sketch3 = body.newObject("Sketcher::SketchObject", "Sketch002")
sketch3.AttachmentSupport = (doc.getObject("XY_Plane"), [""])
sketch3.MapMode = "FlatFace"
sketch3.AttachmentOffset = App.Placement(Vector(0, 0, 2), App.Rotation())
sketch3.addGeometry([
    Part.LineSegment(Vector(-20, 110.2, 0), Vector(-20, 80.2, 0)),
    Part.ArcOfCircle(Part.Circle(Vector(-35, 95.2, 0), Vector(0, 0, 1), 21.2), math.radians(-45), math.radians(45)),
    Part.LineSegment(Vector(20, 80.2, 0), Vector(20, 110.2, 0)),
    Part.ArcOfCircle(Part.Circle(Vector(35, 95.2, 0), Vector(0, 0, 1), 21.2), math.radians(135), math.radians(225)),
    Part.LineSegment(Vector(-3.1, -46.6, 0), Vector(-8.2, -40.3, 0)),
    Part.ArcOfCircle(Part.Circle(Vector(-9, -41, 0), Vector(0, 0, 1), 1), math.radians(39), math.radians(180)),
    Part.LineSegment(Vector(-10, -41, 0), Vector(-10, -53.5, 0)),
    Part.ArcOfCircle(Part.Circle(Vector(-9, -53.5, 0), Vector(0, 0, 1), 1), math.radians(180), math.radians(321)),
    Part.LineSegment(Vector(-8.2, -54.2, 0), Vector(-3.1, -47.9, 0)),
    Part.ArcOfCircle(Part.Circle(Vector(-3.9, -47.2, 0), Vector(0, 0, 1), 1), math.radians(-39), math.radians(39)),
    Part.LineSegment(Vector(10, -53.5, 0), Vector(10, -41, 0)),
    Part.ArcOfCircle(Part.Circle(Vector(9, -41, 0), Vector(0, 0, 1), 1), math.radians(0), math.radians(141)),
    Part.LineSegment(Vector(8.2, -40.3, 0), Vector(3.1, -46.6, 0)),
    Part.ArcOfCircle(Part.Circle(Vector(3.9, -47.2, 0), Vector(0, 0, 1), 1), math.radians(141), math.radians(219)),
    Part.LineSegment(Vector(3.1, -47.9, 0), Vector(8.2, -54.2, 0)),
    Part.ArcOfCircle(Part.Circle(Vector(9, -53.5, 0), Vector(0, 0, 1), 1), math.radians(-141), math.radians(0)),
    Part.LineSegment(Vector(-7.1, -35.4, 0), Vector(-0.8, -43.1, 0)),
    Part.ArcOfCircle(Part.Circle(Vector(0, -42.5, 0), Vector(0, 0, 1), 1), math.radians(-141), math.radians(-39)),
    Part.LineSegment(Vector(0.8, -43.1, 0), Vector(7.1, -35.4, 0)),
    Part.ArcOfCircle(Part.Circle(Vector(6.3, -34.8, 0), Vector(0, 0, 1), 1), math.radians(-39), math.radians(90)),
    Part.LineSegment(Vector(6.3, -33.8, 0), Vector(-6.3, -33.8, 0)),
    Part.ArcOfCircle(Part.Circle(Vector(-6.3, -34.8, 0), Vector(0, 0, 1), 1), math.radians(90), math.radians(219)),
    Part.LineSegment(Vector(7.1, -59.1, 0), Vector(0.8, -51.4, 0)),
    Part.ArcOfCircle(Part.Circle(Vector(0, -52, 0), Vector(0, 0, 1), 1), math.radians(39), math.radians(141)),
    Part.LineSegment(Vector(-0.8, -51.4, 0), Vector(-7.1, -59.1, 0)),
    Part.ArcOfCircle(Part.Circle(Vector(-6.3, -59.8, 0), Vector(0, 0, 1), 1), math.radians(141), math.radians(270)),
    Part.LineSegment(Vector(-6.3, -60.8, 0), Vector(6.3, -60.8, 0)),
    Part.ArcOfCircle(Part.Circle(Vector(6.3, -59.8, 0), Vector(0, 0, 1), 1), math.radians(-90), math.radians(39)),
    Part.LineSegment(Vector(2, 116.2, 0), Vector(2, 82.2, 0)),
    Part.ArcOfCircle(Part.Circle(Vector(4, 82.3, 0), Vector(0, 0, 1), 2), math.radians(-180), math.radians(-90)),
    Part.LineSegment(Vector(4, 80.2, 0), Vector(7.8, 80.2, 0)),
    Part.ArcOfCircle(Part.Circle(Vector(7.8, 82.2, 0), Vector(0, 0, 1), 2), math.radians(-90), math.radians(0)),
    Part.LineSegment(Vector(9.8, 82.2, 0), Vector(9.8, 116.2, 0)),
    Part.ArcOfCircle(Part.Circle(Vector(7.8, 116.2, 0), Vector(0, 0, 1), 2), math.radians(0), math.radians(90)),
    Part.LineSegment(Vector(7.8, 118.2, 0), Vector(4, 118.2, 0)),
    Part.ArcOfCircle(Part.Circle(Vector(4, 116.2, 0), Vector(0, 0, 1), 2), math.radians(90), math.radians(180)),
    Part.LineSegment(Vector(-4, 118.2, 0), Vector(-7.8, 118.2, 0)),
    Part.ArcOfCircle(Part.Circle(Vector(-7.8, 116.2, 0), Vector(0, 0, 1), 2), math.radians(90), math.radians(180)),
    Part.LineSegment(Vector(-9.8, 116.2, 0), Vector(-9.8, 82.2, 0)),
    Part.ArcOfCircle(Part.Circle(Vector(-7.8, 82.2, 0), Vector(0, 0, 1), 2), math.radians(180), math.radians(270)),
    Part.LineSegment(Vector(-7.8, 80.2, 0), Vector(-4, 80.2, 0)),
    Part.ArcOfCircle(Part.Circle(Vector(-4, 82.3, 0), Vector(0, 0, 1), 2), math.radians(-90), math.radians(0)),
    Part.LineSegment(Vector(-2, 82.2, 0), Vector(-2, 116.2, 0)),
    Part.ArcOfCircle(Part.Circle(Vector(-4, 116.2, 0), Vector(0, 0, 1), 2), math.radians(0), math.radians(90)),
], False)
sketch3.addConstraint([
    Sketcher.Constraint("Coincident", 0, 1, 1, 2),
    Sketcher.Constraint("Coincident", 1, 1, 0, 2),
    Sketcher.Constraint("Coincident", 2, 1, 3, 2),
    Sketcher.Constraint("Coincident", 3, 1, 2, 2),
    Sketcher.Constraint("Tangent", 4, 2, 5, 1),
    Sketcher.Constraint("Tangent", 5, 2, 6, 1),
    Sketcher.Constraint("Tangent", 6, 2, 7, 1),
    Sketcher.Constraint("Tangent", 7, 2, 8, 1),
    Sketcher.Constraint("Tangent", 8, 2, 9, 1),
    Sketcher.Constraint("Tangent", 9, 2, 4, 1),
    Sketcher.Constraint("Tangent", 10, 2, 11, 1),
    Sketcher.Constraint("Tangent", 11, 2, 12, 1),
    Sketcher.Constraint("Tangent", 12, 2, 13, 1),
    Sketcher.Constraint("Tangent", 13, 2, 14, 1),
    Sketcher.Constraint("Tangent", 14, 2, 15, 1),
    Sketcher.Constraint("Tangent", 15, 2, 10, 1),
    Sketcher.Constraint("Tangent", 16, 2, 17, 1),
    Sketcher.Constraint("Tangent", 17, 2, 18, 1),
    Sketcher.Constraint("Tangent", 18, 2, 19, 1),
    Sketcher.Constraint("Tangent", 19, 2, 20, 1),
    Sketcher.Constraint("Tangent", 20, 2, 21, 1),
    Sketcher.Constraint("Tangent", 21, 2, 16, 1),
    Sketcher.Constraint("Tangent", 22, 2, 23, 1),
    Sketcher.Constraint("Tangent", 23, 2, 24, 1),
    Sketcher.Constraint("Tangent", 24, 2, 25, 1),
    Sketcher.Constraint("Tangent", 25, 2, 26, 1),
    Sketcher.Constraint("Tangent", 26, 2, 27, 1),
    Sketcher.Constraint("Tangent", 27, 2, 22, 1),
    Sketcher.Constraint("Tangent", 28, 2, 29, 1),
    Sketcher.Constraint("Tangent", 29, 2, 30, 1),
    Sketcher.Constraint("Tangent", 30, 2, 31, 1),
    Sketcher.Constraint("Tangent", 31, 2, 32, 1),
    Sketcher.Constraint("Tangent", 32, 2, 33, 1),
    Sketcher.Constraint("Tangent", 33, 2, 34, 1),
    Sketcher.Constraint("Tangent", 34, 2, 35, 1),
    Sketcher.Constraint("Tangent", 35, 2, 28, 1),
    Sketcher.Constraint("Tangent", 36, 2, 37, 1),
    Sketcher.Constraint("Tangent", 37, 2, 38, 1),
    Sketcher.Constraint("Tangent", 38, 2, 39, 1),
    Sketcher.Constraint("Tangent", 39, 2, 40, 1),
    Sketcher.Constraint("Tangent", 40, 2, 41, 1),
    Sketcher.Constraint("Tangent", 41, 2, 42, 1),
    Sketcher.Constraint("Tangent", 42, 2, 43, 1),
    Sketcher.Constraint("Tangent", 43, 2, 36, 1),
    Sketcher.Constraint("Vertical", 0),
    Sketcher.Constraint("Vertical", 2),
    Sketcher.Constraint("Vertical", 6),
    Sketcher.Constraint("Vertical", 10),
    Sketcher.Constraint("Horizontal", 20),
    Sketcher.Constraint("Horizontal", 26),
    Sketcher.Constraint("Vertical", 28),
    Sketcher.Constraint("Horizontal", 30),
    Sketcher.Constraint("Vertical", 32),
    Sketcher.Constraint("Horizontal", 34),
    Sketcher.Constraint("Horizontal", 36),
    Sketcher.Constraint("Vertical", 38),
    Sketcher.Constraint("Horizontal", 40),
    Sketcher.Constraint("Vertical", 42),
    Sketcher.Constraint("Equal", 1, 3),
    Sketcher.Constraint("Equal", 5, 7),
    Sketcher.Constraint("Equal", 7, 9),
    Sketcher.Constraint("Equal", 9, 11),
    Sketcher.Constraint("Equal", 11, 13),
    Sketcher.Constraint("Equal", 13, 15),
    Sketcher.Constraint("Equal", 15, 17),
    Sketcher.Constraint("Equal", 17, 19),
    Sketcher.Constraint("Equal", 19, 21),
    Sketcher.Constraint("Equal", 21, 23),
    Sketcher.Constraint("Equal", 23, 25),
    Sketcher.Constraint("Equal", 25, 27),
    Sketcher.Constraint("Equal", 29, 31),
    Sketcher.Constraint("Equal", 31, 33),
    Sketcher.Constraint("Equal", 33, 35),
    Sketcher.Constraint("Equal", 35, 37),
    Sketcher.Constraint("Equal", 37, 39),
    Sketcher.Constraint("Equal", 39, 41),
    Sketcher.Constraint("Equal", 41, 43),
    Sketcher.Constraint("Symmetric", 1, 3, 3, 3, -2),
    Sketcher.Constraint("Symmetric", 5, 3, 11, 3, -2),
    Sketcher.Constraint("Symmetric", 9, 3, 13, 3, -2),
    Sketcher.Constraint("Symmetric", 33, 3, 37, 3, -2),
    Sketcher.Constraint("Symmetric", 29, 3, 41, 3, -2),
    Sketcher.Constraint("Symmetric", 16, 2, 17, 2, -2),
    Sketcher.Constraint("Symmetric", 22, 2, 23, 2, -2),
    Sketcher.Constraint("Parallel", 8, 12),
    Sketcher.Constraint("Parallel", 4, 14),
    Sketcher.Constraint("Parallel", 14, 16),
    Sketcher.Constraint("Parallel", 16, 22),
    Sketcher.Constraint("Horizontal", 1, 1, 2, 1),
    Sketcher.Constraint("Horizontal", 2, 1, 29, 2),
    Sketcher.Constraint("Vertical", 21, 3, 25, 3),
    Sketcher.Constraint("Radius", 5, Q("1 mm")),
    Sketcher.Constraint("Radius", 29, Q("2 mm")),
    Sketcher.Constraint("DistanceY", 0, 2, 0, 1, Q("30 mm")),
    Sketcher.Constraint("DistanceY", 28, 2, 28, 1, Q("34 mm")),
    Sketcher.Constraint("DistanceX", 1, 3, -1, 1, Q("35 mm")),
    Sketcher.Constraint("DistanceX", 5, 3, -1, 1, Q("9 mm")),
    Sketcher.Constraint("DistanceX", -1, 1, 29, 3, Q("4 mm")),
    Sketcher.Constraint("DistanceX", 0, 1, -1, 1, Q("20 mm")),
    Sketcher.Constraint("DistanceY", -1, 1, 1, 3, Q("95.25 mm")),
    Sketcher.Constraint("DistanceY", 9, 3, -1, 1, Q("47.25 mm")),
    Sketcher.Constraint("DistanceY", 19, 3, -1, 1, Q("34.75 mm")),
    Sketcher.Constraint("DistanceY", 25, 3, -1, 1, Q("59.75 mm")),
    Sketcher.Constraint("DistanceX", 20, 2, 20, 1, Q("12.630782 mm")),
    Sketcher.Constraint("Distance", 16, Q("9.997881 mm")),
    Sketcher.Constraint("DistanceX", 30, 1, 30, 2, Q("3.786797 mm")),
    Sketcher.Constraint("DistanceY", 6, 2, 6, 1, Q("12.592323 mm")),
])
pocket1 = body.newObject("PartDesign::Pocket", "Pocket")
pocket1.Profile = sketch3
pocket1.Length = 2

doc.recompute()
